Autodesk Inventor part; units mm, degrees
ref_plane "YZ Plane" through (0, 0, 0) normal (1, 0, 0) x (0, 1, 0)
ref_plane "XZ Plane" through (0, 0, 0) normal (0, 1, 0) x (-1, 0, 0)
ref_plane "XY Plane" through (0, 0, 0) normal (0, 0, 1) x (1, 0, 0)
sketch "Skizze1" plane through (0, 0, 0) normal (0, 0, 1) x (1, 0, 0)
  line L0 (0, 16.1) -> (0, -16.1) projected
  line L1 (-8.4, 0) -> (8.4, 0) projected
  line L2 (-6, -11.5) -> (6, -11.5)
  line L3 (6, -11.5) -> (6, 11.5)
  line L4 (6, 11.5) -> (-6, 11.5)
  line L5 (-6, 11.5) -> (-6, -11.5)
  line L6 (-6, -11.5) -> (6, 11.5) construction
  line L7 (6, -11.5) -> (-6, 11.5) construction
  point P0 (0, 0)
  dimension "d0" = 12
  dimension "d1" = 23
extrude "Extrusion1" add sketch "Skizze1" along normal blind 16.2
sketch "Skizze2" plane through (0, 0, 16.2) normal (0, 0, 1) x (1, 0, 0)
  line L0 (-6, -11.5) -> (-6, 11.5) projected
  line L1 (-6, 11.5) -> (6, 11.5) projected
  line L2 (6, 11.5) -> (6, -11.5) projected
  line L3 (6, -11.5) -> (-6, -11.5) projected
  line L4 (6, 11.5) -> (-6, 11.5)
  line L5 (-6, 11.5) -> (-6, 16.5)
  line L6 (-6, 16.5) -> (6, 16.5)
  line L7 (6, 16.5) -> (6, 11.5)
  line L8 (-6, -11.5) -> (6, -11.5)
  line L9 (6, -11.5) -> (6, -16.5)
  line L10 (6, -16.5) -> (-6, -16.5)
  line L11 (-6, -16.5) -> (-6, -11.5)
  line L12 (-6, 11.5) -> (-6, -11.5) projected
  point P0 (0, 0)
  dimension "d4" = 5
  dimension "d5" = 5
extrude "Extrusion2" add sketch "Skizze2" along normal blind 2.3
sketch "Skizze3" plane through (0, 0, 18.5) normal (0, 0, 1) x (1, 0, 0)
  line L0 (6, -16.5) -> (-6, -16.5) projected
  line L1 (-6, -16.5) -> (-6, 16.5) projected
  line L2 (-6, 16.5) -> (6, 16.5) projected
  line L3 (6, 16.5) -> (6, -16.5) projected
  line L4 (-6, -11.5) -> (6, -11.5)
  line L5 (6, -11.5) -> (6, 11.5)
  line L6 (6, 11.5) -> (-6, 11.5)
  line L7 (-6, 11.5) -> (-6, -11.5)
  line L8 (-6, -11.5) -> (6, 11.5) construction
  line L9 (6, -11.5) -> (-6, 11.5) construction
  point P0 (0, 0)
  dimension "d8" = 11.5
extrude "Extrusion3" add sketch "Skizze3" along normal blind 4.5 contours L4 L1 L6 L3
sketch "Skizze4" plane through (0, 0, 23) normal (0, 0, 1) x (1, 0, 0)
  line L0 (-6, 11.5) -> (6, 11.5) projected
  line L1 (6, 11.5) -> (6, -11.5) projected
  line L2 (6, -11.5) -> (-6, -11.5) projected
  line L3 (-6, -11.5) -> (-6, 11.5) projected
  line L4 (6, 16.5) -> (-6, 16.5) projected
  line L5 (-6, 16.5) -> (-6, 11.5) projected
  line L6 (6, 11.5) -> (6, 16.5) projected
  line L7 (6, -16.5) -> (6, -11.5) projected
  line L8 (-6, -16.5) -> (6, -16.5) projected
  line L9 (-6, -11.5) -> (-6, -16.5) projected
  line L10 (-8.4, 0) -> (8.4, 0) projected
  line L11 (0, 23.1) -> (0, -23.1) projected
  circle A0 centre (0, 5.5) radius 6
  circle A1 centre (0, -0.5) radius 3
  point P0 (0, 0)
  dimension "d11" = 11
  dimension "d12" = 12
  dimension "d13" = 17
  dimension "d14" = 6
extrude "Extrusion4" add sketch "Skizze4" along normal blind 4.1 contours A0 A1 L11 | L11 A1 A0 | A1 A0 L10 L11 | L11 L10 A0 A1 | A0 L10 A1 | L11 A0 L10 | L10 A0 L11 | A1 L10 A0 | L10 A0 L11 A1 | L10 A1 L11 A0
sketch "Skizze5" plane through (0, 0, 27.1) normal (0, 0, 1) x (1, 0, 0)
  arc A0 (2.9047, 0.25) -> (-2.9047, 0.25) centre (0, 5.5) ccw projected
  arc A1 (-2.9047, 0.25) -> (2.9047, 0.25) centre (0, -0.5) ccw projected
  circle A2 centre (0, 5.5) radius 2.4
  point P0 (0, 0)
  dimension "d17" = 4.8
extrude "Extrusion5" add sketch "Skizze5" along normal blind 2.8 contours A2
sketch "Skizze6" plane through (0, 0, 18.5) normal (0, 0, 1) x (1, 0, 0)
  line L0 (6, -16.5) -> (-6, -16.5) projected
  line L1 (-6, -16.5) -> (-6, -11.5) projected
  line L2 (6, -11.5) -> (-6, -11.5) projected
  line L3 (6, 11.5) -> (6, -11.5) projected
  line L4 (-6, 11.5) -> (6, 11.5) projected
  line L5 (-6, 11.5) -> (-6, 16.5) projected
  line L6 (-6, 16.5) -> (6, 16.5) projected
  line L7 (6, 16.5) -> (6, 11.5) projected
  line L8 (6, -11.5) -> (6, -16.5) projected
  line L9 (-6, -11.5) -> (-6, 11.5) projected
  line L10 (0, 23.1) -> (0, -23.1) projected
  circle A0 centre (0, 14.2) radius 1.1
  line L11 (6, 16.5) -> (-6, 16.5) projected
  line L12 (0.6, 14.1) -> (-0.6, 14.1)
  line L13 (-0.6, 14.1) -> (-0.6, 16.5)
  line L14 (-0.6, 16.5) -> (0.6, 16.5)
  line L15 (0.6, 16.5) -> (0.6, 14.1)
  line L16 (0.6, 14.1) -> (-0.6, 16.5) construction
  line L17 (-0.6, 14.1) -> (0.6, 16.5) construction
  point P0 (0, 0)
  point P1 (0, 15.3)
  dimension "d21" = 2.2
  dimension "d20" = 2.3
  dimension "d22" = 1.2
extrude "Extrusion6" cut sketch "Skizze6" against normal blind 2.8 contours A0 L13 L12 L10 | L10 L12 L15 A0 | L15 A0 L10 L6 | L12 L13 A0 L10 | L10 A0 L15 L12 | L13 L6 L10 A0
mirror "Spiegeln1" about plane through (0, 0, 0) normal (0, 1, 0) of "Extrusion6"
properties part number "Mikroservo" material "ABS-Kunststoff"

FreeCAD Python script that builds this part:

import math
import FreeCAD as App
import Part
import Sketcher

V = App.Vector

doc = App.newDocument("Part")
body = doc.addObject("PartDesign::Body", "Body")

# Sketch on XY plane
sketch1 = body.newObject("Sketcher::SketchObject", "Sketch")
sketch1.AttachmentSupport = (doc.getObject("XY_Plane"), [""])
sketch1.MapMode = "FlatFace"
sketch1.addGeometry([
    Part.LineSegment(V(6, 12, 0), V(-6, 12, 0)),
    Part.LineSegment(V(-6, 12, 0), V(-6, -12, 0)),
    Part.LineSegment(V(-6, -12, 0), V(6, -12, 0)),
    Part.LineSegment(V(6, -12, 0), V(6, 12, 0)),
], False)
sketch1.addConstraint([
    Sketcher.Constraint("Coincident", 0, 2, 1, 1),
    Sketcher.Constraint("Coincident", 1, 2, 2, 1),
    Sketcher.Constraint("Coincident", 2, 2, 3, 1),
    Sketcher.Constraint("Coincident", 3, 2, 0, 1),
    Sketcher.Constraint("Horizontal", 0),
    Sketcher.Constraint("Vertical", 1),
    Sketcher.Constraint("Horizontal", 2),
    Sketcher.Constraint("Vertical", 3),
    Sketcher.Constraint("Symmetric", 0, 2, 2, 2, -1, 1),
    Sketcher.Constraint("DistanceX", 0, 2, 0, 1, 12.0),
    Sketcher.Constraint("DistanceY", 1, 2, 1, 1, 23.0),
])
pad1 = body.newObject("PartDesign::Pad", "Pad")
pad1.Profile = sketch1
pad1.Length = 16.2

# Sketch on XY plane
sketch2 = body.newObject("Sketcher::SketchObject", "Sketch001")
sketch2.AttachmentSupport = (doc.getObject("XY_Plane"), [""])
sketch2.MapMode = "FlatFace"
sketch2.AttachmentOffset = App.Placement(V(0, 0, 16.2), App.Rotation())
sketch2.addGeometry([
    Part.LineSegment(V(-6, -16, 0), V(6, -16, 0)),
    Part.LineSegment(V(6, -16, 0), V(6, 16, 0)),
    Part.LineSegment(V(6, 16, 0), V(-6, 16, 0)),
    Part.LineSegment(V(-6, 16, 0), V(-6, -16, 0)),
], False)
sketch2.addConstraint([
    Sketcher.Constraint("Coincident", 0, 2, 1, 1),
    Sketcher.Constraint("Coincident", 1, 2, 2, 1),
    Sketcher.Constraint("Coincident", 2, 2, 3, 1),
    Sketcher.Constraint("Coincident", 3, 2, 0, 1),
    Sketcher.Constraint("Horizontal", 0),
    Sketcher.Constraint("Vertical", 1),
    Sketcher.Constraint("Horizontal", 2),
    Sketcher.Constraint("Vertical", 3),
    Sketcher.Constraint("Symmetric", 0, 2, 2, 2, -1, 1),
    Sketcher.Constraint("DistanceX", 0, 1, 0, 2, 12.0),
    Sketcher.Constraint("DistanceY", 1, 1, 1, 2, 33.0),
])
pad2 = body.newObject("PartDesign::Pad", "Pad001")
pad2.Profile = sketch2
pad2.Length = 2.3

# Sketch on XY plane
sketch3 = body.newObject("Sketcher::SketchObject", "Sketch002")
sketch3.AttachmentSupport = (doc.getObject("XY_Plane"), [""])
sketch3.MapMode = "FlatFace"
sketch3.AttachmentOffset = App.Placement(V(0, 0, 18.5), App.Rotation())
sketch3.addGeometry([
    Part.LineSegment(V(-6, -12, 0), V(6, -12, 0)),
    Part.LineSegment(V(6, -12, 0), V(6, 12, 0)),
    Part.LineSegment(V(6, 12, 0), V(-6, 12, 0)),
    Part.LineSegment(V(-6, 12, 0), V(-6, -12, 0)),
], False)
sketch3.addConstraint([
    Sketcher.Constraint("Coincident", 0, 2, 1, 1),
    Sketcher.Constraint("Coincident", 1, 2, 2, 1),
    Sketcher.Constraint("Coincident", 2, 2, 3, 1),
    Sketcher.Constraint("Coincident", 3, 2, 0, 1),
    Sketcher.Constraint("Horizontal", 0),
    Sketcher.Constraint("Vertical", 1),
    Sketcher.Constraint("Horizontal", 2),
    Sketcher.Constraint("Vertical", 3),
    Sketcher.Constraint("Symmetric", 0, 2, 2, 2, -1, 1),
    Sketcher.Constraint("DistanceY", 0, 2, -1, 1, 11.5),
    Sketcher.Constraint("DistanceX", 0, 1, 0, 2, 12.0),
])
pad3 = body.newObject("PartDesign::Pad", "Pad002")
pad3.Profile = sketch3
pad3.Length = 4.5

# Sketch on XY plane
sketch4 = body.newObject("Sketcher::SketchObject", "Sketch003")
sketch4.AttachmentSupport = (doc.getObject("XY_Plane"), [""])
sketch4.MapMode = "FlatFace"
sketch4.AttachmentOffset = App.Placement(V(0, 0, 23), App.Rotation())
sketch4.addGeometry([
    Part.ArcOfCircle(Part.Circle(V(0, -0.5, 0), V(0, 0, 1), 3), math.radians(166), math.radians(374)),
    Part.ArcOfCircle(Part.Circle(V(0, 5.5, 0), V(0, 0, 1), 6), math.radians(-61), math.radians(241)),
], False)
sketch4.addConstraint([
    Sketcher.Constraint("Coincident", 0, 1, 1, 2),
    Sketcher.Constraint("Coincident", 1, 1, 0, 2),
    Sketcher.Constraint("Symmetric", 0, 1, 1, 1, -2),
    Sketcher.Constraint("Radius", 0, 3.0),
    Sketcher.Constraint("Radius", 1, 6.0),
    Sketcher.Constraint("DistanceY", 0, 3, 1, 3, 6.0),
    Sketcher.Constraint("DistanceY", 0, 3, -1, 1, 0.5),
])
pad4 = body.newObject("PartDesign::Pad", "Pad003")
pad4.Profile = sketch4
pad4.Length = 4.1

# Sketch on XY plane
sketch5 = body.newObject("Sketcher::SketchObject", "Sketch004")
sketch5.AttachmentSupport = (doc.getObject("XY_Plane"), [""])
sketch5.MapMode = "FlatFace"
sketch5.AttachmentOffset = App.Placement(V(0, 0, 27.1), App.Rotation())
sketch5.addGeometry(Part.Circle(V(0, 5.5, 0), V(0, 0, 1), 2.4), False)
sketch5.addConstraint([
    Sketcher.Constraint("PointOnObject", 0, 3, -2),
    Sketcher.Constraint("Diameter", 0, 4.8),
    Sketcher.Constraint("DistanceY", -1, 1, 0, 3, 5.5),
])
pad5 = body.newObject("PartDesign::Pad", "Pad004")
pad5.Profile = sketch5
pad5.Length = 2.8

# Sketch on XY plane
sketch6 = body.newObject("Sketcher::SketchObject", "Sketch005")
sketch6.AttachmentSupport = (doc.getObject("XY_Plane"), [""])
sketch6.MapMode = "FlatFace"
sketch6.AttachmentOffset = App.Placement(V(0, 0, 18.5), App.Rotation())
sketch6.addGeometry([
    Part.ArcOfCircle(Part.Circle(V(0, 14.2, 0), V(0, 0, 1), 1.1), math.radians(123), math.radians(417)),
    Part.LineSegment(V(0.6, 15.1, 0), V(0.6, 16.5, 0)),
    Part.LineSegment(V(0.6, 16.5, 0), V(-0.6, 16.5, 0)),
    Part.LineSegment(V(-0.6, 16.5, 0), V(-0.6, 15.1, 0)),
], False)
sketch6.addConstraint([
    Sketcher.Constraint("Coincident", 0, 2, 1, 1),
    Sketcher.Constraint("Coincident", 1, 2, 2, 1),
    Sketcher.Constraint("Coincident", 2, 2, 3, 1),
    Sketcher.Constraint("Coincident", 3, 2, 0, 1),
    Sketcher.Constraint("Vertical", 1),
    Sketcher.Constraint("Horizontal", 2),
    Sketcher.Constraint("Vertical", 3),
    Sketcher.Constraint("Symmetric", 0, 2, 3, 2, -2),
    Sketcher.Constraint("Radius", 0, 1.1),
    Sketcher.Constraint("DistanceX", 2, 2, 2, 1, 1.2),
    Sketcher.Constraint("DistanceY", 0, 3, 1, 2, 2.3),
    Sketcher.Constraint("DistanceY", -1, 1, 0, 3, 14.2),
])
pocket1 = body.newObject("PartDesign::Pocket", "Pocket")
pocket1.Profile = sketch6
pocket1.Length = 2.8
doc.recompute()

mirrored = body.newObject("PartDesign::Mirrored", "Mirrored")
mirrored.Originals = [pocket1]
mirrored.MirrorPlane = (doc.getObject("XZ_Plane"), [""])
body.Tip = mirrored

doc.recompute()
